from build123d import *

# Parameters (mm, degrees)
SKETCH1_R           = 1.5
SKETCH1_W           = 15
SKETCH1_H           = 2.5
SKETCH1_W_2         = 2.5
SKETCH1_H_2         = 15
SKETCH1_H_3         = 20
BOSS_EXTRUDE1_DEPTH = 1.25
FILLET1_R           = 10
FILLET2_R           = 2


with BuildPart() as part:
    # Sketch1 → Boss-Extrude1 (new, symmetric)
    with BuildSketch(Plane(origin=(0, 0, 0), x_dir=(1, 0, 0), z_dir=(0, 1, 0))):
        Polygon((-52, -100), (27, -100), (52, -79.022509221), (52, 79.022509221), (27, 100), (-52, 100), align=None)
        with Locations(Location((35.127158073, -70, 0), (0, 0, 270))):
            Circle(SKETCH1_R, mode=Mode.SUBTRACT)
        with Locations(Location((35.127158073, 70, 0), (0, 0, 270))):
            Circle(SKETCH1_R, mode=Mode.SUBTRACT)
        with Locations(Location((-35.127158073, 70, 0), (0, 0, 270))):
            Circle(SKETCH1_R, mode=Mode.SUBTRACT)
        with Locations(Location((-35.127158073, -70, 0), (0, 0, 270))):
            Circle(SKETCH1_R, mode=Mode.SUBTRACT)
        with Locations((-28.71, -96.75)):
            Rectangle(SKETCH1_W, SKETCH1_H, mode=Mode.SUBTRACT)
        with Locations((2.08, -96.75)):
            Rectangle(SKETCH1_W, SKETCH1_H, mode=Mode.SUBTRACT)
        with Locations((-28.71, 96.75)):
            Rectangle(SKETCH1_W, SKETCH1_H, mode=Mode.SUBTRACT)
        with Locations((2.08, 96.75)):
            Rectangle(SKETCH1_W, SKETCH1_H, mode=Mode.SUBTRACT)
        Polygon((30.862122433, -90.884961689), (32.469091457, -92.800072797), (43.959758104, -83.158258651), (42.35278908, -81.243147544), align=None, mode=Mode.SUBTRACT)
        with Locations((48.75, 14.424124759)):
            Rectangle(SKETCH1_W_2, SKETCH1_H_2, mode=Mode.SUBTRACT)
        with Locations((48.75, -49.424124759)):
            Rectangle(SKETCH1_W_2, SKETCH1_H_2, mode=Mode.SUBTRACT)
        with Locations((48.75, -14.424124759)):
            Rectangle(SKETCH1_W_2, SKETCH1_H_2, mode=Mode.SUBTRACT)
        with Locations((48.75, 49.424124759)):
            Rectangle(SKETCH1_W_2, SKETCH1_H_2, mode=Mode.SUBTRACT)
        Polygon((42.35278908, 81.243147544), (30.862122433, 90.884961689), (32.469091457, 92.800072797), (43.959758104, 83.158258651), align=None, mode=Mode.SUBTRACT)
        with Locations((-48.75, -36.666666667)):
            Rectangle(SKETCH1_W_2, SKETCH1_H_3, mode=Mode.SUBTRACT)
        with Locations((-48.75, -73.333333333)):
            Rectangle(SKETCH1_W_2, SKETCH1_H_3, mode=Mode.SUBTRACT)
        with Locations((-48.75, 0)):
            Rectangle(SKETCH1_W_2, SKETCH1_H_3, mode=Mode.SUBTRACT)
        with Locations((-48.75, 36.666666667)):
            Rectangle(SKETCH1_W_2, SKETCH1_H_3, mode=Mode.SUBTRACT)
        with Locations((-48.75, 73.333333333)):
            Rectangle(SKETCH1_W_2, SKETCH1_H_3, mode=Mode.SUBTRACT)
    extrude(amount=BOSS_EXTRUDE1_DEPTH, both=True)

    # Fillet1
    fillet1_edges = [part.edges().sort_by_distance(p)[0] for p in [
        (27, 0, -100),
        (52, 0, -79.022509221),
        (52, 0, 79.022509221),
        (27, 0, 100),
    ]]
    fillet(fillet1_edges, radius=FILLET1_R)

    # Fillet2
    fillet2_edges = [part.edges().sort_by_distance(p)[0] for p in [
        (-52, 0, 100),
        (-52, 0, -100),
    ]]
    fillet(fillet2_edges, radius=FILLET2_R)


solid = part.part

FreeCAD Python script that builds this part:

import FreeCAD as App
import Part
import Sketcher
Q = App.Units.Quantity


def edges_at(feature, points):
    """Names of the edges that pass closest to the given points."""
    edges = feature.Shape.Edges
    near = lambda p: min(range(len(edges)), key=lambda i: edges[i].distToShape(Part.Vertex(*p))[0])
    return sorted({f"Edge{near(p) + 1}" for p in points})


def add_polygon(sketch, points):
    """Adds a closed chain of lines whose ends are joined by coincident constraints."""
    first, n = sketch.GeometryCount, len(points)
    for a, b in zip(points, points[1:] + points[:1]):
        sketch.addGeometry(Part.LineSegment(App.Vector(*a, 0), App.Vector(*b, 0)), False)
    for i in range(n):
        sketch.addConstraint(Sketcher.Constraint("Coincident", first + i, 2, first + (i + 1) % n, 1))

doc = App.newDocument("Part")
body = doc.addObject("PartDesign::Body", "Body")

# Sketch on XZ plane
sketch1 = body.newObject("Sketcher::SketchObject", "Sketch")
sketch1.AttachmentSupport = (doc.getObject("XZ_Plane"), [""])
sketch1.MapMode = "FlatFace"
add_polygon(sketch1, [(-52, 100), (27, 100), (52, 79), (52, -79), (27, -100), (-52, -100)])  # lines 0-5
add_polygon(sketch1, [(-21.2, 98), (-36.2, 98), (-36.2, 95.5), (-21.2, 95.5)])  # lines 6-9
add_polygon(sketch1, [(-47.5, 83.3), (-50, 83.3), (-50, 63.3), (-47.5, 63.3)])  # lines 10-13
sketch1.addGeometry(Part.Circle(App.Vector(-35.1, 70, 0), App.Vector(0, 0, 1), 1.5), False)  # 14
add_polygon(sketch1, [(-47.5, 46.7), (-50, 46.7), (-50, 26.7), (-47.5, 26.7)])  # lines 15-18
add_polygon(sketch1, [(-47.5, 10), (-50, 10), (-50, -10), (-47.5, -10)])  # lines 19-22
add_polygon(sketch1, [(9.6, 98), (-5.4, 98), (-5.4, 95.5), (9.6, 95.5)])  # lines 23-26
add_polygon(sketch1, [(32.5, 92.8), (30.9, 90.9), (42.4, 81.2), (44, 83.2)])  # lines 27-30
sketch1.addGeometry(Part.Circle(App.Vector(35.1, 70, 0), App.Vector(0, 0, 1), 1.5), False)  # 31
add_polygon(sketch1, [(50, 56.9), (47.5, 56.9), (47.5, 41.9), (50, 41.9)])  # lines 32-35
add_polygon(sketch1, [(50, 21.9), (47.5, 21.9), (47.5, 6.9), (50, 6.9)])  # lines 36-39
add_polygon(sketch1, [(-47.5, -26.7), (-50, -26.7), (-50, -46.7), (-47.5, -46.7)])  # lines 40-43
add_polygon(sketch1, [(-47.5, -63.3), (-50, -63.3), (-50, -83.3), (-47.5, -83.3)])  # lines 44-47
sketch1.addGeometry(Part.Circle(App.Vector(-35.1, -70, 0), App.Vector(0, 0, 1), 1.5), False)  # 48
add_polygon(sketch1, [(-21.2, -95.5), (-36.2, -95.5), (-36.2, -98), (-21.2, -98)])  # lines 49-52
add_polygon(sketch1, [(50, -6.9), (47.5, -6.9), (47.5, -21.9), (50, -21.9)])  # lines 53-56
add_polygon(sketch1, [(9.6, -95.5), (-5.4, -95.5), (-5.4, -98), (9.6, -98)])  # lines 57-60
sketch1.addGeometry(Part.Circle(App.Vector(35.1, -70, 0), App.Vector(0, 0, 1), 1.5), False)  # 61
add_polygon(sketch1, [(50, -41.9), (47.5, -41.9), (47.5, -56.9), (50, -56.9)])  # lines 62-65
add_polygon(sketch1, [(44, -83.2), (42.4, -81.2), (30.9, -90.9), (32.5, -92.8)])  # lines 66-69
sketch1.addConstraint([
    Sketcher.Constraint("Horizontal", 0),
    Sketcher.Constraint("Vertical", 2),
    Sketcher.Constraint("Horizontal", 4),
    Sketcher.Constraint("Vertical", 5),
    Sketcher.Constraint("Horizontal", 6),
    Sketcher.Constraint("Vertical", 7),
    Sketcher.Constraint("Horizontal", 8),
    Sketcher.Constraint("Vertical", 9),
    Sketcher.Constraint("Horizontal", 10),
    Sketcher.Constraint("Vertical", 11),
    Sketcher.Constraint("Horizontal", 12),
    Sketcher.Constraint("Vertical", 13),
    Sketcher.Constraint("Horizontal", 15),
    Sketcher.Constraint("Vertical", 16),
    Sketcher.Constraint("Horizontal", 17),
    Sketcher.Constraint("Vertical", 18),
    Sketcher.Constraint("Horizontal", 19),
    Sketcher.Constraint("Vertical", 20),
    Sketcher.Constraint("Horizontal", 21),
    Sketcher.Constraint("Vertical", 22),
    Sketcher.Constraint("Horizontal", 23),
    Sketcher.Constraint("Vertical", 24),
    Sketcher.Constraint("Horizontal", 25),
    Sketcher.Constraint("Vertical", 26),
    Sketcher.Constraint("Horizontal", 32),
    Sketcher.Constraint("Vertical", 33),
    Sketcher.Constraint("Horizontal", 34),
    Sketcher.Constraint("Vertical", 35),
    Sketcher.Constraint("Horizontal", 36),
    Sketcher.Constraint("Vertical", 37),
    Sketcher.Constraint("Horizontal", 38),
    Sketcher.Constraint("Vertical", 39),
    Sketcher.Constraint("Horizontal", 40),
    Sketcher.Constraint("Vertical", 41),
    Sketcher.Constraint("Horizontal", 42),
    Sketcher.Constraint("Vertical", 43),
    Sketcher.Constraint("Horizontal", 44),
    Sketcher.Constraint("Vertical", 45),
    Sketcher.Constraint("Horizontal", 46),
    Sketcher.Constraint("Vertical", 47),
    Sketcher.Constraint("Horizontal", 49),
    Sketcher.Constraint("Vertical", 50),
    Sketcher.Constraint("Horizontal", 51),
    Sketcher.Constraint("Vertical", 52),
    Sketcher.Constraint("Horizontal", 53),
    Sketcher.Constraint("Vertical", 54),
    Sketcher.Constraint("Horizontal", 55),
    Sketcher.Constraint("Vertical", 56),
    Sketcher.Constraint("Horizontal", 57),
    Sketcher.Constraint("Vertical", 58),
    Sketcher.Constraint("Horizontal", 59),
    Sketcher.Constraint("Vertical", 60),
    Sketcher.Constraint("Horizontal", 62),
    Sketcher.Constraint("Vertical", 63),
    Sketcher.Constraint("Horizontal", 64),
    Sketcher.Constraint("Vertical", 65),
    Sketcher.Constraint("Equal", 14, 31),
    Sketcher.Constraint("Equal", 31, 48),
    Sketcher.Constraint("Equal", 48, 61),
    Sketcher.Constraint("Symmetric", 31, 3, 48, 3, -1, 1),
    Sketcher.Constraint("Symmetric", 14, 3, 61, 3, -1, 1),
    Sketcher.Constraint("Symmetric", 14, 3, 31, 3, -2),
    Sketcher.Constraint("Symmetric", 0, 2, 3, 2, -1),
    Sketcher.Constraint("Symmetric", 16, 2, 40, 2, -1),
    Sketcher.Constraint("Symmetric", 18, 2, 42, 2, -1),
    Sketcher.Constraint("Symmetric", 11, 2, 44, 2, -1),
    Sketcher.Constraint("Symmetric", 13, 2, 46, 2, -1),
    Sketcher.Constraint("Symmetric", 7, 2, 49, 2, -1),
    Sketcher.Constraint("Symmetric", 9, 2, 51, 2, -1),
    Sketcher.Constraint("Symmetric", 37, 2, 53, 2, -1),
    Sketcher.Constraint("Symmetric", 39, 2, 55, 2, -1),
    Sketcher.Constraint("Symmetric", 24, 2, 57, 2, -1),
    Sketcher.Constraint("Symmetric", 26, 2, 59, 2, -1),
    Sketcher.Constraint("Symmetric", 33, 2, 62, 2, -1),
    Sketcher.Constraint("Symmetric", 35, 2, 64, 2, -1),
    Sketcher.Constraint("Symmetric", 28, 2, 66, 2, -1),
    Sketcher.Constraint("Symmetric", 27, 2, 67, 2, -1),
    Sketcher.Constraint("Symmetric", 30, 2, 68, 2, -1),
    Sketcher.Constraint("Symmetric", 29, 2, 69, 2, -1),
    Sketcher.Constraint("Perpendicular", 1, 27),
    Sketcher.Constraint("Perpendicular", 27, 28),
    Sketcher.Constraint("Perpendicular", 28, 29),
    Sketcher.Constraint("Perpendicular", 29, 30),
    Sketcher.Constraint("Perpendicular", 3, 66),
    Sketcher.Constraint("Horizontal", 9, 2, 23, 2),
    Sketcher.Constraint("Horizontal", 8, 2, 24, 2),
    Sketcher.Constraint("Vertical", 11, 2, 15, 2),
    Sketcher.Constraint("Vertical", 13, 2, 17, 2),
    Sketcher.Constraint("Vertical", 16, 2, 19, 2),
    Sketcher.Constraint("Vertical", 18, 2, 21, 2),
    Sketcher.Constraint("Vertical", 33, 2, 36, 2),
    Sketcher.Constraint("Vertical", 35, 2, 38, 2),
    Sketcher.Constraint("Equal", 8, 23),
    Sketcher.Constraint("Equal", 21, 32),
    Sketcher.Constraint("Equal", 64, 7),
    Sketcher.Constraint("Equal", 13, 16),
    Sketcher.Constraint("Equal", 18, 20),
    Sketcher.Constraint("Equal", 59, 33),
    Sketcher.Constraint("Equal", 35, 37),
    Sketcher.Constraint("Diameter", 14, Q("3 mm")),
    Sketcher.Constraint("DistanceX", 0, 1, 0, 2, Q("79 mm")),
    Sketcher.Constraint("DistanceX", 6, 2, 6, 1, Q("15 mm")),
    Sketcher.Constraint("DistanceY", 5, 1, 5, 2, Q("200 mm")),
    Sketcher.Constraint("DistanceY", 11, 2, 11, 1, Q("20 mm")),
    Sketcher.Constraint("Angle", 1, Q("-40 deg")),
    Sketcher.Constraint("Distance", 28, Q("15 mm")),
    Sketcher.Constraint("DistanceX", 10, 2, 10, 1, Q("2.5 mm")),
    Sketcher.Constraint("DistanceY", -1, 1, 14, 3, Q("70 mm")),
    Sketcher.Constraint("DistanceX", -1, 1, 0, 2, Q("27 mm")),
    Sketcher.Constraint("DistanceX", -1, 1, 1, 2, Q("52 mm")),
    Sketcher.Constraint("DistanceY", -1, 1, 6, 2, Q("98 mm")),
    Sketcher.Constraint("DistanceX", 10, 2, -1, 1, Q("50 mm")),
    Sketcher.Constraint("DistanceY", -1, 1, 19, 2, Q("10 mm")),
    Sketcher.Constraint("DistanceX", -1, 1, 34, 2, Q("50 mm")),
    Sketcher.Constraint("Distance", 27, Q("2.5 mm")),
    Sketcher.Constraint("DistanceX", 6, 2, -1, 1, Q("36.21 mm")),
    Sketcher.Constraint("DistanceX", 23, 2, -1, 1, Q("5.42 mm")),
    Sketcher.Constraint("DistanceX", 14, 3, -1, 1, Q("35.127158 mm")),
    Sketcher.Constraint("DistanceY", -1, 1, 27, 2, Q("90.884962 mm")),
    Sketcher.Constraint("DistanceX", -1, 1, 28, 2, Q("42.352789 mm")),
    Sketcher.Constraint("DistanceY", -1, 1, 10, 2, Q("83.333333 mm")),
    Sketcher.Constraint("DistanceY", -1, 1, 15, 2, Q("46.666667 mm")),
    Sketcher.Constraint("DistanceY", -1, 1, 32, 2, Q("56.924125 mm")),
    Sketcher.Constraint("DistanceY", -1, 1, 36, 2, Q("21.924125 mm")),
])
pad1 = body.newObject("PartDesign::Pad", "Pad")
pad1.Profile = sketch1
pad1.Length = 2.5
pad1.Midplane = True
doc.recompute()

fillet = body.newObject("PartDesign::Fillet", "Fillet")
fillet.Base = (pad1, edges_at(pad1, [
    (27, 0, -100),
    (52, 0, -79.023),
    (52, 0, 79.023),
    (27, 0, 100),
]))
fillet.Radius = 10
doc.recompute()

fillet2 = body.newObject("PartDesign::Fillet", "Fillet001")
fillet2.Base = (fillet, edges_at(fillet, [(-52, 0, 100), (-52, 0, -100)]))
fillet2.Radius = 2

doc.recompute()
